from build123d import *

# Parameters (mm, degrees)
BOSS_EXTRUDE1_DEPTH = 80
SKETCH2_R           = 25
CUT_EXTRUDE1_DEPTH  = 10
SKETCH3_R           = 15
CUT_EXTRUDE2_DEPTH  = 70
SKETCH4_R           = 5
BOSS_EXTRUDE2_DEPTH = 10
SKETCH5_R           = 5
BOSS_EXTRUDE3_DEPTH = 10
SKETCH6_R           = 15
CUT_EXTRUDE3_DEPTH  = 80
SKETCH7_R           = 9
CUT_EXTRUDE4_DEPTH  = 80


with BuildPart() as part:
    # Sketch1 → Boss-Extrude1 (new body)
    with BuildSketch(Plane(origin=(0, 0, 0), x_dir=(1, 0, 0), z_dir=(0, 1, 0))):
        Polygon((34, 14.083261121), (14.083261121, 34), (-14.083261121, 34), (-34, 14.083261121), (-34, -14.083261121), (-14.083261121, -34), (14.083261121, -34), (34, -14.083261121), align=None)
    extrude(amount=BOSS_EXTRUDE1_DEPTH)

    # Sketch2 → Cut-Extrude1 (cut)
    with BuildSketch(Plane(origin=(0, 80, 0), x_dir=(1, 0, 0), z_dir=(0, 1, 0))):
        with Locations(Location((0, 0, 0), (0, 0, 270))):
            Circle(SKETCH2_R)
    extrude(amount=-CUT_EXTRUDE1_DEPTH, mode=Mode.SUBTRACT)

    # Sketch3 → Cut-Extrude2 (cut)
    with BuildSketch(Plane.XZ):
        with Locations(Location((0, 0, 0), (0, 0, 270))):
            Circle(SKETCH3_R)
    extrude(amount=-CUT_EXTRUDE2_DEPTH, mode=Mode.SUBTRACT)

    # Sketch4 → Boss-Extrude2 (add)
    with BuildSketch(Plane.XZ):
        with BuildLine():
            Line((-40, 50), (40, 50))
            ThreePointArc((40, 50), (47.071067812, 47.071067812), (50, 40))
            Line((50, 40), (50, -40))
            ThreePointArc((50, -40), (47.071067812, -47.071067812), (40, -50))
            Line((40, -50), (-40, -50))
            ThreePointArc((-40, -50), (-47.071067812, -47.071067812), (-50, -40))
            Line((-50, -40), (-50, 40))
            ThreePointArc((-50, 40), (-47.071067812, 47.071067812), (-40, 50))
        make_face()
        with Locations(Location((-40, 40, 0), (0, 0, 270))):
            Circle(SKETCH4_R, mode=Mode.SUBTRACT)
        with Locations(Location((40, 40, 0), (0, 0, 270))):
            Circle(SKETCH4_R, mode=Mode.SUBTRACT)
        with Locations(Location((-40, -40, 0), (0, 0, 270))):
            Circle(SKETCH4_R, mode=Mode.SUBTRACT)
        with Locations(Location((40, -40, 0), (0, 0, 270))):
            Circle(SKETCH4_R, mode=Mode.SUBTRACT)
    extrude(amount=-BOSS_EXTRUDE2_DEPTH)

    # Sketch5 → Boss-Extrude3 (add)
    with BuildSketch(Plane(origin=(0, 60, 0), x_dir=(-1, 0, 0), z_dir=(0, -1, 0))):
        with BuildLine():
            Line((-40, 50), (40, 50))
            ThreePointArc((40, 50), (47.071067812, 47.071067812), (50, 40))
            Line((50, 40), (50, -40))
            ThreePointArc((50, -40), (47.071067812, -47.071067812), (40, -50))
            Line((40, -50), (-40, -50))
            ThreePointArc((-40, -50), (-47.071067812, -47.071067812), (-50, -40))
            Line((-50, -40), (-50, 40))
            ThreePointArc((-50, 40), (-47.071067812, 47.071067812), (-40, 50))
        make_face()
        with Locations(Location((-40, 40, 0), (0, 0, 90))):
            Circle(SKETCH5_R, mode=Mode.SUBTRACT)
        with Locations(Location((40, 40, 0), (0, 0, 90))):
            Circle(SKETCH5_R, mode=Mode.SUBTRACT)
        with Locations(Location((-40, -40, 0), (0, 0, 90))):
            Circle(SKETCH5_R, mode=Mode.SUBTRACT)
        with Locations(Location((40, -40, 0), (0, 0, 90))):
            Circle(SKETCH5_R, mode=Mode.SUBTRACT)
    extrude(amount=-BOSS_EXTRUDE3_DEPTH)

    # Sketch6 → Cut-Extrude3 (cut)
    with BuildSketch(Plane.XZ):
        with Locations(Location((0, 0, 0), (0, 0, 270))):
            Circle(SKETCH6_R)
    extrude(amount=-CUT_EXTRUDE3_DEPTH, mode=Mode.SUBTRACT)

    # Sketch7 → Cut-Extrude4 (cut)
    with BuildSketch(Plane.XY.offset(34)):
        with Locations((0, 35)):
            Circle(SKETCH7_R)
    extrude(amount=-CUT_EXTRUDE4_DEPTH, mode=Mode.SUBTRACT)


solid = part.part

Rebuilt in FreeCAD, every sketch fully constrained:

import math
import FreeCAD as App
import Part
import Sketcher


def add_polygon(sketch, points):
    """Adds a closed chain of lines whose ends are joined by coincident constraints."""
    first, n = sketch.GeometryCount, len(points)
    for a, b in zip(points, points[1:] + points[:1]):
        sketch.addGeometry(Part.LineSegment(App.Vector(*a, 0), App.Vector(*b, 0)), False)
    for i in range(n):
        sketch.addConstraint(Sketcher.Constraint("Coincident", first + i, 2, first + (i + 1) % n, 1))

doc = App.newDocument("Part")
body = doc.addObject("PartDesign::Body", "Body")

# Sketch on XZ plane
sketch1 = doc.addObject("Sketcher::SketchObject", "Sketch")
body.addObject(sketch1)
sketch1.AttachmentSupport = (doc.XZ_Plane, [""])
sketch1.MapMode = "FlatFace"
add_polygon(sketch1, [(34, -14.083261), (14.083261, -34), (-14.083261, -34), (-34, -14.083261), (-34, 14.083261), (-14.083261, 34), (14.083261, 34), (34, 14.083261)])  # lines 0-7
sketch1.addConstraint([
    Sketcher.Constraint("Horizontal", 1),
    Sketcher.Constraint("Vertical", 3),
    Sketcher.Constraint("Horizontal", 5),
    Sketcher.Constraint("Vertical", 7),
    Sketcher.Constraint("Symmetric", 0, 2, 4, 2, -1, 1),
    Sketcher.Constraint("Symmetric", 2, 2, 6, 2, -1, 1),
    Sketcher.Constraint("Perpendicular", 0, 2),
    Sketcher.Constraint("Perpendicular", 2, 4),
    Sketcher.Constraint("Perpendicular", 4, 6),
    Sketcher.Constraint("Horizontal", 3, 2, 6, 2),
    Sketcher.Constraint("Vertical", 1, 2, 4, 2),
    Sketcher.Constraint("Equal", 5, 3),
    Sketcher.Constraint("DistanceY", 0, 2, -1, 1, 34.0),
    Sketcher.Constraint("DistanceX", 1, 2, 1, 1, 28.166522),
])
pad1 = doc.addObject("PartDesign::Pad", "Pad")
body.addObject(pad1)
pad1.Profile = sketch1
pad1.Length = 80
pad1.Reversed = True

# Sketch on XZ plane
sketch2 = doc.addObject("Sketcher::SketchObject", "Sketch001")
body.addObject(sketch2)
sketch2.AttachmentSupport = (doc.XZ_Plane, [""])
sketch2.MapMode = "FlatFace"
sketch2.AttachmentOffset = App.Placement(App.Vector(0, 0, -80), App.Rotation())
sketch2.addGeometry(Part.Circle(App.Vector(0, 0, 0), App.Vector(0, 0, 1), 25), False)
sketch2.addConstraint([
    Sketcher.Constraint("Coincident", 0, 3, -1, 1),
    Sketcher.Constraint("Diameter", 0, 50.0),
])
pocket1 = doc.addObject("PartDesign::Pocket", "Pocket")
body.addObject(pocket1)
pocket1.Profile = sketch2
pocket1.Length = 10
pocket1.Reversed = True

# Sketch on XZ plane
sketch3 = doc.addObject("Sketcher::SketchObject", "Sketch002")
body.addObject(sketch3)
sketch3.AttachmentSupport = (doc.XZ_Plane, [""])
sketch3.MapMode = "FlatFace"
sketch3.addGeometry(Part.Circle(App.Vector(0, 0, 0), App.Vector(0, 0, 1), 15), False)
sketch3.addConstraint([
    Sketcher.Constraint("Coincident", 0, 3, -1, 1),
    Sketcher.Constraint("Diameter", 0, 30.0),
])
pocket2 = doc.addObject("PartDesign::Pocket", "Pocket001")
body.addObject(pocket2)
pocket2.Profile = sketch3
pocket2.Length = 70

# Sketch on XZ plane
sketch4 = doc.addObject("Sketcher::SketchObject", "Sketch003")
body.addObject(sketch4)
sketch4.AttachmentSupport = (doc.XZ_Plane, [""])
sketch4.MapMode = "FlatFace"
sketch4.addGeometry([
    Part.LineSegment(App.Vector(40, 50, 0), App.Vector(-40, 50, 0)),  # 0
    Part.ArcOfCircle(Part.Circle(App.Vector(-40, 40, 0), App.Vector(0, 0, 1), 10), math.radians(90), math.radians(180)),  # 1
    Part.LineSegment(App.Vector(-50, 40, 0), App.Vector(-50, -40, 0)),  # 2
    Part.ArcOfCircle(Part.Circle(App.Vector(-40, -40, 0), App.Vector(0, 0, 1), 10), math.radians(180), math.radians(270)),  # 3
    Part.LineSegment(App.Vector(-40, -50, 0), App.Vector(40, -50, 0)),  # 4
    Part.ArcOfCircle(Part.Circle(App.Vector(40, -40, 0), App.Vector(0, 0, 1), 10), math.radians(-90), math.radians(0)),  # 5
    Part.LineSegment(App.Vector(50, -40, 0), App.Vector(50, 40, 0)),  # 6
    Part.ArcOfCircle(Part.Circle(App.Vector(40, 40, 0), App.Vector(0, 0, 1), 10), math.radians(0), math.radians(90)),  # 7
    Part.Circle(App.Vector(40, -40, 0), App.Vector(0, 0, 1), 5),  # 8
    Part.Circle(App.Vector(-40, -40, 0), App.Vector(0, 0, 1), 5),  # 9
    Part.Circle(App.Vector(40, 40, 0), App.Vector(0, 0, 1), 5),  # 10
    Part.Circle(App.Vector(-40, 40, 0), App.Vector(0, 0, 1), 5),  # 11
], False)
sketch4.addConstraint([
    Sketcher.Constraint("Tangent", 0, 2, 1, 1),
    Sketcher.Constraint("Tangent", 1, 2, 2, 1),
    Sketcher.Constraint("Tangent", 2, 2, 3, 1),
    Sketcher.Constraint("Tangent", 3, 2, 4, 1),
    Sketcher.Constraint("Tangent", 4, 2, 5, 1),
    Sketcher.Constraint("Tangent", 5, 2, 6, 1),
    Sketcher.Constraint("Tangent", 6, 2, 7, 1),
    Sketcher.Constraint("Tangent", 7, 2, 0, 1),
    Sketcher.Constraint("Horizontal", 0),
    Sketcher.Constraint("Vertical", 2),
    Sketcher.Constraint("Horizontal", 4),
    Sketcher.Constraint("Vertical", 6),
    Sketcher.Constraint("Coincident", 8, 3, 5, 3),
    Sketcher.Constraint("Coincident", 9, 3, 3, 3),
    Sketcher.Constraint("Coincident", 10, 3, 7, 3),
    Sketcher.Constraint("Coincident", 11, 3, 1, 3),
    Sketcher.Constraint("Equal", 1, 3),
    Sketcher.Constraint("Equal", 3, 5),
    Sketcher.Constraint("Equal", 5, 7),
    Sketcher.Constraint("Equal", 8, 9),
    Sketcher.Constraint("Equal", 9, 10),
    Sketcher.Constraint("Equal", 10, 11),
    Sketcher.Constraint("Symmetric", 1, 3, 5, 3, -1, 1),
    Sketcher.Constraint("Equal", 4, 2),
    Sketcher.Constraint("Diameter", 8, 10.0),
    Sketcher.Constraint("Radius", 1, 10.0),
    Sketcher.Constraint("DistanceX", 0, 2, 0, 1, 80.0),
])
pad2 = doc.addObject("PartDesign::Pad", "Pad001")
body.addObject(pad2)
pad2.Profile = sketch4
pad2.Length = 10
pad2.Reversed = True

# Sketch on XZ plane
sketch5 = doc.addObject("Sketcher::SketchObject", "Sketch004")
body.addObject(sketch5)
sketch5.AttachmentSupport = (doc.XZ_Plane, [""])
sketch5.MapMode = "FlatFace"
sketch5.AttachmentOffset = App.Placement(App.Vector(0, 0, -60), App.Rotation())
sketch5.addGeometry([
    Part.LineSegment(App.Vector(-40, -50, 0), App.Vector(40, -50, 0)),  # 0
    Part.ArcOfCircle(Part.Circle(App.Vector(40, -40, 0), App.Vector(0, 0, 1), 10), math.radians(-90), math.radians(0)),  # 1
    Part.LineSegment(App.Vector(50, -40, 0), App.Vector(50, 40, 0)),  # 2
    Part.ArcOfCircle(Part.Circle(App.Vector(40, 40, 0), App.Vector(0, 0, 1), 10), math.radians(0), math.radians(90)),  # 3
    Part.LineSegment(App.Vector(40, 50, 0), App.Vector(-40, 50, 0)),  # 4
    Part.ArcOfCircle(Part.Circle(App.Vector(-40, 40, 0), App.Vector(0, 0, 1), 10), math.radians(90), math.radians(180)),  # 5
    Part.LineSegment(App.Vector(-50, 40, 0), App.Vector(-50, -40, 0)),  # 6
    Part.ArcOfCircle(Part.Circle(App.Vector(-40, -40, 0), App.Vector(0, 0, 1), 10), math.radians(180), math.radians(270)),  # 7
    Part.Circle(App.Vector(-40, 40, 0), App.Vector(0, 0, 1), 5),  # 8
    Part.Circle(App.Vector(40, 40, 0), App.Vector(0, 0, 1), 5),  # 9
    Part.Circle(App.Vector(-40, -40, 0), App.Vector(0, 0, 1), 5),  # 10
    Part.Circle(App.Vector(40, -40, 0), App.Vector(0, 0, 1), 5),  # 11
], False)
sketch5.addConstraint([
    Sketcher.Constraint("Tangent", 0, 2, 1, 1),
    Sketcher.Constraint("Tangent", 1, 2, 2, 1),
    Sketcher.Constraint("Tangent", 2, 2, 3, 1),
    Sketcher.Constraint("Tangent", 3, 2, 4, 1),
    Sketcher.Constraint("Tangent", 4, 2, 5, 1),
    Sketcher.Constraint("Tangent", 5, 2, 6, 1),
    Sketcher.Constraint("Tangent", 6, 2, 7, 1),
    Sketcher.Constraint("Tangent", 7, 2, 0, 1),
    Sketcher.Constraint("Horizontal", 0),
    Sketcher.Constraint("Vertical", 2),
    Sketcher.Constraint("Horizontal", 4),
    Sketcher.Constraint("Vertical", 6),
    Sketcher.Constraint("Coincident", 8, 3, 5, 3),
    Sketcher.Constraint("Coincident", 9, 3, 3, 3),
    Sketcher.Constraint("Coincident", 10, 3, 7, 3),
    Sketcher.Constraint("Coincident", 11, 3, 1, 3),
    Sketcher.Constraint("Equal", 1, 3),
    Sketcher.Constraint("Equal", 3, 5),
    Sketcher.Constraint("Equal", 5, 7),
    Sketcher.Constraint("Equal", 8, 9),
    Sketcher.Constraint("Equal", 9, 10),
    Sketcher.Constraint("Equal", 10, 11),
    Sketcher.Constraint("Symmetric", 1, 3, 5, 3, -1, 1),
    Sketcher.Constraint("Equal", 4, 2),
    Sketcher.Constraint("Diameter", 8, 10.0),
    Sketcher.Constraint("Radius", 1, 10.0),
    Sketcher.Constraint("DistanceX", 0, 1, 0, 2, 80.0),
])
pad3 = doc.addObject("PartDesign::Pad", "Pad002")
body.addObject(pad3)
pad3.Profile = sketch5
pad3.Length = 10
pad3.Reversed = True

# Sketch on XZ plane
sketch6 = doc.addObject("Sketcher::SketchObject", "Sketch005")
body.addObject(sketch6)
sketch6.AttachmentSupport = (doc.XZ_Plane, [""])
sketch6.MapMode = "FlatFace"
sketch6.addGeometry(Part.Circle(App.Vector(0, 0, 0), App.Vector(0, 0, 1), 15), False)
sketch6.addConstraint([
    Sketcher.Constraint("Coincident", 0, 3, -1, 1),
    Sketcher.Constraint("Diameter", 0, 30.0),
])
pocket3 = doc.addObject("PartDesign::Pocket", "Pocket002")
body.addObject(pocket3)
pocket3.Profile = sketch6
pocket3.Length = 80

# Sketch on XY plane
sketch7 = doc.addObject("Sketcher::SketchObject", "Sketch006")
body.addObject(sketch7)
sketch7.AttachmentSupport = (doc.XY_Plane, [""])
sketch7.MapMode = "FlatFace"
sketch7.AttachmentOffset = App.Placement(App.Vector(0, 0, 34), App.Rotation())
sketch7.addGeometry(Part.Circle(App.Vector(0, 35, 0), App.Vector(0, 0, 1), 9), False)
sketch7.addConstraint([
    Sketcher.Constraint("PointOnObject", 0, 3, -2),
    Sketcher.Constraint("Diameter", 0, 18.0),
    Sketcher.Constraint("DistanceY", -1, 1, 0, 3, 35.0),
])
pocket4 = doc.addObject("PartDesign::Pocket", "Pocket003")
body.addObject(pocket4)
pocket4.Profile = sketch7
pocket4.Length = 80

doc.recompute()
